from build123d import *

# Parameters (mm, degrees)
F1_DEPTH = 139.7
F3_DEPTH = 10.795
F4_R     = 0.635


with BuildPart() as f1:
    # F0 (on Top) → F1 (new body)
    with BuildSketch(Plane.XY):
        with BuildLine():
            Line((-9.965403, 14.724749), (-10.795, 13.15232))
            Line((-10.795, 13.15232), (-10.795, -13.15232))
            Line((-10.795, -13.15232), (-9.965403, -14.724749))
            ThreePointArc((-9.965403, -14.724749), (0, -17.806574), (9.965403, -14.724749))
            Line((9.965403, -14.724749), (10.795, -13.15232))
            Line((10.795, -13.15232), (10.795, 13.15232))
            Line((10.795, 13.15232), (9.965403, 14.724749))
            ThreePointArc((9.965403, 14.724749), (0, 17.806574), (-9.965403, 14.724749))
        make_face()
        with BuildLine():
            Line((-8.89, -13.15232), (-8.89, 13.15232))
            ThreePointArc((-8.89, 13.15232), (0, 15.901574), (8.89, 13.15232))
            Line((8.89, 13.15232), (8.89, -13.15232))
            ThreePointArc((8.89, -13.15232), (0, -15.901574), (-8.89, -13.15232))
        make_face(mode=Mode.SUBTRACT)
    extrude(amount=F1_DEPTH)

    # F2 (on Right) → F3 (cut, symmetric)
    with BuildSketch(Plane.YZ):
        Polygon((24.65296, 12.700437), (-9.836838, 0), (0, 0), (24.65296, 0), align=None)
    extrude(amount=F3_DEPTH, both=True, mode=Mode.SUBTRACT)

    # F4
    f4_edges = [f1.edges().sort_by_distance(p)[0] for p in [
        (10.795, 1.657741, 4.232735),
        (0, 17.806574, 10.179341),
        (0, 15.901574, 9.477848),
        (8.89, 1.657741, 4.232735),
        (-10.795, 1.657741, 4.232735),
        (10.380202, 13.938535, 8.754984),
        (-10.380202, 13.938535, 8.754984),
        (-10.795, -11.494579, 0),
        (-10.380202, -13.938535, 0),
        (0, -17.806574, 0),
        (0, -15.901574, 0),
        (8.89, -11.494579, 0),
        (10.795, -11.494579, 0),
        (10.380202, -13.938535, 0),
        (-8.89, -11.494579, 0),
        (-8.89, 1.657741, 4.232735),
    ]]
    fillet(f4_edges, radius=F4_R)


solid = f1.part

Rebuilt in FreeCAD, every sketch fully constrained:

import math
import FreeCAD as App
import Part
import Sketcher
Q = App.Units.Quantity


def edges_at(feature, points):
    """Names of the edges that pass closest to the given points."""
    edges = feature.Shape.Edges
    near = lambda p: min(range(len(edges)), key=lambda i: edges[i].distToShape(Part.Vertex(*p))[0])
    return sorted({f"Edge{near(p) + 1}" for p in points})


def add_polygon(sketch, points):
    """Adds a closed chain of lines whose ends are joined by coincident constraints."""
    first, n = sketch.GeometryCount, len(points)
    for a, b in zip(points, points[1:] + points[:1]):
        sketch.addGeometry(Part.LineSegment(App.Vector(*a, 0), App.Vector(*b, 0)), False)
    for i in range(n):
        sketch.addConstraint(Sketcher.Constraint("Coincident", first + i, 2, first + (i + 1) % n, 1))

doc = App.newDocument("Part")
body = doc.addObject("PartDesign::Body", "Body")

# Sketch on XY plane
sketch1 = doc.addObject("Sketcher::SketchObject", "Sketch")
body.addObject(sketch1)
sketch1.AttachmentSupport = (doc.XY_Plane, [""])
sketch1.MapMode = "FlatFace"
sketch1.addGeometry([
    Part.LineSegment(App.Vector(-9.965403, 14.724749, 0), App.Vector(-10.795, 13.15232, 0)),  # 0
    Part.LineSegment(App.Vector(-10.795, 13.15232, 0), App.Vector(-10.795, -13.15232, 0)),  # 1
    Part.LineSegment(App.Vector(-10.795, -13.15232, 0), App.Vector(-9.965403, -14.724749, 0)),  # 2
    Part.ArcOfCircle(Part.Circle(App.Vector(0, -0.153576, 0), App.Vector(0, 0, 1), 17.652998), math.radians(-124.3687), math.radians(-55.6313)),  # 3
    Part.LineSegment(App.Vector(9.965403, -14.724749, 0), App.Vector(10.795, -13.15232, 0)),  # 4
    Part.LineSegment(App.Vector(10.795, -13.15232, 0), App.Vector(10.795, 13.15232, 0)),  # 5
    Part.LineSegment(App.Vector(10.795, 13.15232, 0), App.Vector(9.965403, 14.724749, 0)),  # 6
    Part.ArcOfCircle(Part.Circle(App.Vector(0, 0.153576, 0), App.Vector(0, 0, 1), 17.652998), math.radians(55.6313), math.radians(124.3687)),  # 7
    Part.ArcOfCircle(Part.Circle(App.Vector(0, -0.153575, 0), App.Vector(0, 0, 1), 15.747999), math.radians(-124.3687), math.radians(-55.6313)),  # 8
    Part.LineSegment(App.Vector(-8.89, -13.15232, 0), App.Vector(-8.89, 13.15232, 0)),  # 9
    Part.ArcOfCircle(Part.Circle(App.Vector(0, 0.153575, 0), App.Vector(0, 0, 1), 15.747999), math.radians(55.6313), math.radians(124.3687)),  # 10
    Part.LineSegment(App.Vector(8.89, 13.15232, 0), App.Vector(8.89, -13.15232, 0)),  # 11
], False)
sketch1.addConstraint([
    Sketcher.Constraint("Coincident", 0, 2, 1, 1),
    Sketcher.Constraint("Coincident", 1, 2, 2, 1),
    Sketcher.Constraint("Coincident", 2, 2, 3, 1),
    Sketcher.Constraint("Coincident", 3, 2, 4, 1),
    Sketcher.Constraint("Coincident", 4, 2, 5, 1),
    Sketcher.Constraint("Coincident", 5, 2, 6, 1),
    Sketcher.Constraint("Coincident", 6, 2, 7, 1),
    Sketcher.Constraint("Coincident", 7, 2, 0, 1),
    Sketcher.Constraint("Coincident", 8, 1, 9, 1),
    Sketcher.Constraint("Coincident", 9, 2, 10, 2),
    Sketcher.Constraint("Coincident", 10, 1, 11, 1),
    Sketcher.Constraint("Coincident", 11, 2, 8, 2),
    Sketcher.Constraint("Vertical", 1),
    Sketcher.Constraint("Vertical", 5),
    Sketcher.Constraint("Vertical", 9),
    Sketcher.Constraint("Vertical", 11),
    Sketcher.Constraint("Coincident", 8, 3, 3, 3),
    Sketcher.Constraint("Coincident", 10, 3, 7, 3),
    Sketcher.Constraint("Equal", 3, 7),
    Sketcher.Constraint("Equal", 8, 10),
    Sketcher.Constraint("Symmetric", 3, 3, 7, 3, -1, 1),
    Sketcher.Constraint("Symmetric", 0, 2, 4, 2, -1, 1),
    Sketcher.Constraint("Symmetric", 2, 2, 3, 2, -2),
    Sketcher.Constraint("Parallel", 0, 4),
    Sketcher.Constraint("Parallel", 2, 6),
    Sketcher.Constraint("Horizontal", 1, 2, 4, 2),
    Sketcher.Constraint("Horizontal", 0, 2, 5, 2),
    Sketcher.Constraint("Horizontal", 4, 2, 8, 1),
    Sketcher.Constraint("Horizontal", 9, 2, 10, 1),
    Sketcher.Constraint("Radius", 8, Q("0.62 in")),
    Sketcher.Constraint("Radius", 3, Q("0.6949999 in")),
    Sketcher.Constraint("DistanceX", 8, 1, -1, 1, Q("0.35 in")),
    Sketcher.Constraint("DistanceX", 0, 2, 5, 2, Q("0.85 in")),
    Sketcher.Constraint("DistanceY", 1, 2, 1, 1, Q("26.30464 mm")),
    Sketcher.Constraint("DistanceY", 2, 2, -1, 1, Q("14.724749 mm")),
])
pad1 = doc.addObject("PartDesign::Pad", "Pad")
body.addObject(pad1)
pad1.Profile = sketch1
pad1.Length = Q("5.5 in")

# Sketch on YZ plane
sketch2 = doc.addObject("Sketcher::SketchObject", "Sketch001")
body.addObject(sketch2)
sketch2.AttachmentSupport = (doc.YZ_Plane, [""])
sketch2.MapMode = "FlatFace"
add_polygon(sketch2, [(24.65296, 12.700437), (-9.836838, 0), (24.65296, 0)])  # lines 0-2
sketch2.addConstraint([
    Sketcher.Constraint("Horizontal", 1),
    Sketcher.Constraint("Vertical", 2),
    Sketcher.Constraint("PointOnObject", 0, 2, -1),
    Sketcher.Constraint("DistanceX", 1, 1, 1, 2, Q("34.489798 mm")),
    Sketcher.Constraint("DistanceY", 2, 1, 2, 2, Q("12.700437 mm")),
    Sketcher.Constraint("DistanceX", -1, 1, 1, 2, Q("24.65296 mm")),
])
pocket1 = doc.addObject("PartDesign::Pocket", "Pocket")
body.addObject(pocket1)
pocket1.Profile = sketch2
pocket1.Length = Q("0.85 in")
pocket1.Midplane = True
doc.recompute()

fillet = doc.addObject("PartDesign::Fillet", "Fillet")
body.addObject(fillet)
fillet.Base = (pocket1, edges_at(pocket1, [
    (10.795, 1.658, 4.233),
    (0, 17.807, 10.179),
    (0, 15.902, 9.478),
    (8.89, 1.658, 4.233),
    (-10.795, 1.658, 4.233),
    (10.38, 13.939, 8.755),
    (-10.38, 13.939, 8.755),
    (-10.795, -11.495, 0),
    (-10.38, -13.939, 0),
    (0, -17.807, 0),
    (0, -15.902, 0),
    (8.89, -11.495, 0),
    (10.795, -11.495, 0),
    (10.38, -13.939, 0),
    (-8.89, -11.495, 0),
    (-8.89, 1.658, 4.233),
]))
fillet.Radius = Q("0.025 in")

doc.recompute()
